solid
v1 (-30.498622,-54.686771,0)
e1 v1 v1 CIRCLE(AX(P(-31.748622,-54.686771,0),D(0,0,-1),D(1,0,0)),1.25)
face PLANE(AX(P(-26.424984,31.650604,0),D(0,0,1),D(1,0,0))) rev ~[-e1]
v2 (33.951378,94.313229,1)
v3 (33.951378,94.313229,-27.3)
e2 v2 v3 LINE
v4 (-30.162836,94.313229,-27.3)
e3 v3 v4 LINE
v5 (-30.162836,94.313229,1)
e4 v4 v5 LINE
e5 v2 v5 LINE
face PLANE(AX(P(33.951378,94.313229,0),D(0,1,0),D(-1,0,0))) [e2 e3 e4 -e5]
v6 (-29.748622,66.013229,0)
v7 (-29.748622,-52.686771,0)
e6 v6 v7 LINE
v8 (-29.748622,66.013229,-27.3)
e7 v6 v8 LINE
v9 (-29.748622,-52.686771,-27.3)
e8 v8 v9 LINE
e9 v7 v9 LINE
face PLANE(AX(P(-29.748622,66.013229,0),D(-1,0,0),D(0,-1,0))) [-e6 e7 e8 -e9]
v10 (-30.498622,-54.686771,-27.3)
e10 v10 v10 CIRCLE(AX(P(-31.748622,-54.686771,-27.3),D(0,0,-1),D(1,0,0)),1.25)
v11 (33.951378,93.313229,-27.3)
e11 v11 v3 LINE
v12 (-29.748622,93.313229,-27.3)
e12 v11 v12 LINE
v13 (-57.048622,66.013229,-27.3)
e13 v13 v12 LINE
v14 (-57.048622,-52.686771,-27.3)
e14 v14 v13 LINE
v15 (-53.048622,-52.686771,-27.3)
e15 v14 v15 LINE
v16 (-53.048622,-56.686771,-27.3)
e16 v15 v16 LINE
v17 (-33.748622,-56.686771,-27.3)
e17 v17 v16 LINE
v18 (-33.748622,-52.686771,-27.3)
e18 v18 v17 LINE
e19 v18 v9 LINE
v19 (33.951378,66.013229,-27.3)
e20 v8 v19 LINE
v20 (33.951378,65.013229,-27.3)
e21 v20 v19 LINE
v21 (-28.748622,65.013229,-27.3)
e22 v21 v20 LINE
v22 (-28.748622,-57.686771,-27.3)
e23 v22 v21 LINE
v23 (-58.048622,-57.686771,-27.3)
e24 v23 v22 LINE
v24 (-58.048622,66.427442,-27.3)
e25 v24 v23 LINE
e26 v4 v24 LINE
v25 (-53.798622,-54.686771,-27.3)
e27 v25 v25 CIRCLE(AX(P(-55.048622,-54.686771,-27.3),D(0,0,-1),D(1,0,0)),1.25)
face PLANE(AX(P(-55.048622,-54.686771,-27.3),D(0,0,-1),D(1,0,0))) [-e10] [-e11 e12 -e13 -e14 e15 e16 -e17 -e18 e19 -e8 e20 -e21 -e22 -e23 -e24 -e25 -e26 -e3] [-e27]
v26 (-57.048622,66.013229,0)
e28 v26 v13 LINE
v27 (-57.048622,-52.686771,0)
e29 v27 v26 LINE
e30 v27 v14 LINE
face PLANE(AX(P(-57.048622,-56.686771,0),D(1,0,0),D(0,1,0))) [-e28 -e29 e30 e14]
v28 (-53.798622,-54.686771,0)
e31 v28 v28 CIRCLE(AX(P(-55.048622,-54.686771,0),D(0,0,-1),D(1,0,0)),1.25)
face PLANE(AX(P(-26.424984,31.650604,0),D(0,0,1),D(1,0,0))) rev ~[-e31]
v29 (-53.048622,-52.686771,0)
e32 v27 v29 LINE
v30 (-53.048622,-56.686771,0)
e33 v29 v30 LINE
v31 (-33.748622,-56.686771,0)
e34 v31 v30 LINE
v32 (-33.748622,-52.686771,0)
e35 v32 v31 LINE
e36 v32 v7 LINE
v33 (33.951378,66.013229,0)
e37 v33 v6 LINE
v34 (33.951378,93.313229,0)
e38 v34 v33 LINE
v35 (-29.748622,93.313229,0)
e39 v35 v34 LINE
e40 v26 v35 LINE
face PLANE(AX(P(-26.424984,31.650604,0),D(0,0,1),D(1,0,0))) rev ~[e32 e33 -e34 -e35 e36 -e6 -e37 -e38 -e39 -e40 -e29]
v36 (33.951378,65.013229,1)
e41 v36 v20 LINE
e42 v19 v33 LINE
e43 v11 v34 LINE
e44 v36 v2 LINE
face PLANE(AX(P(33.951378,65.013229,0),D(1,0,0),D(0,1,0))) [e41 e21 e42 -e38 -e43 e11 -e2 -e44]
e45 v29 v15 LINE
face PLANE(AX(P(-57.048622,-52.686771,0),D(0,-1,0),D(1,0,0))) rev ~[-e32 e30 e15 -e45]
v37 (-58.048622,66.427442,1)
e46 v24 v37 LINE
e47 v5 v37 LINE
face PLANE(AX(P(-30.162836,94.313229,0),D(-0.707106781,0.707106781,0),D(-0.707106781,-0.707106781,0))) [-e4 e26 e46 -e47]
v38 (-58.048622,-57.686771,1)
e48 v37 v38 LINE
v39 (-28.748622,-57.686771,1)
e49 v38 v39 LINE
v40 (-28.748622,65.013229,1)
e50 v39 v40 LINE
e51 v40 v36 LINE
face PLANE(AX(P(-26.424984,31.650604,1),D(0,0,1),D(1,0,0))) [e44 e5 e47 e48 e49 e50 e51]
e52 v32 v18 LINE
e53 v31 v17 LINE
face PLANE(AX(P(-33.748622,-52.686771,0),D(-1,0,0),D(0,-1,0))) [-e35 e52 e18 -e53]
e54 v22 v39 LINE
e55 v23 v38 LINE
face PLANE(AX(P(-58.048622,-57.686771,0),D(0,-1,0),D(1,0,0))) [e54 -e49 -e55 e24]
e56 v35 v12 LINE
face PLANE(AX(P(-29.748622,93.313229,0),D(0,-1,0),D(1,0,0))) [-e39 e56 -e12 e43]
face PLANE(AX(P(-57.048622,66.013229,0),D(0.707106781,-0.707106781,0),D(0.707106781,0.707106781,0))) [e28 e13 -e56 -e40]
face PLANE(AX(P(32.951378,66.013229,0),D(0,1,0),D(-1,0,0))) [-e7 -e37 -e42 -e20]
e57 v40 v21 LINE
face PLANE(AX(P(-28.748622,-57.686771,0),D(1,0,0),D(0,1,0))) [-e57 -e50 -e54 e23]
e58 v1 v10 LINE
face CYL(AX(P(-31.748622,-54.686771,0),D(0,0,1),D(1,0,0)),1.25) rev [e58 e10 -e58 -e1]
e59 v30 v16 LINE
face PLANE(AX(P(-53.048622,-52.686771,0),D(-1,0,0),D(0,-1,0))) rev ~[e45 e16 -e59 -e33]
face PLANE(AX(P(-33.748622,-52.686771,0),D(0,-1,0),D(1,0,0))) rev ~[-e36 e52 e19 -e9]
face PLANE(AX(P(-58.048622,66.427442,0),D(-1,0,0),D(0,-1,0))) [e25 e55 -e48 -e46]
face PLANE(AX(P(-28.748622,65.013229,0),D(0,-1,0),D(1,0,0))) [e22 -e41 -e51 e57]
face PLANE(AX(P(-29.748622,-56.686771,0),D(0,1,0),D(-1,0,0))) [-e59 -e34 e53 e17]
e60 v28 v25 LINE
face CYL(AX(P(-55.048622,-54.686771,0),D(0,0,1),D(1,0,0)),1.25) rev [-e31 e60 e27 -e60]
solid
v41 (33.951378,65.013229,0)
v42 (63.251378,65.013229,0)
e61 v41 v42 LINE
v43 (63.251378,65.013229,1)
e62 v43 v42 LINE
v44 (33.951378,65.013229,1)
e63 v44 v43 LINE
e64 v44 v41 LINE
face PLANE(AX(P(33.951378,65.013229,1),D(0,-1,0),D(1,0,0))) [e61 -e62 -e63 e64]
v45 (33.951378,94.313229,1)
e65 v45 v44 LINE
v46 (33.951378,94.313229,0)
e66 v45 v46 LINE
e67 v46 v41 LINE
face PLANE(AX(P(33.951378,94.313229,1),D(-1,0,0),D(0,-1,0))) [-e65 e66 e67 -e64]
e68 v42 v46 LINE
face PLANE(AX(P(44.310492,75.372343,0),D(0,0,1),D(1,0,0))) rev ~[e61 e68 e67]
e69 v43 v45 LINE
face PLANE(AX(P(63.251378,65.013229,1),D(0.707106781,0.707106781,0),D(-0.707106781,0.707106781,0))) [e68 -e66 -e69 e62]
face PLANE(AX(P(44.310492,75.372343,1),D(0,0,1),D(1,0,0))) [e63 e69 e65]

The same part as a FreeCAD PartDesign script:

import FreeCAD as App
import Part
import Sketcher

V = App.Vector
Q = App.Units.Quantity


def add_polygon(sketch, points):
    """Adds a closed chain of lines whose ends are joined by coincident constraints."""
    first, n = sketch.GeometryCount, len(points)
    for a, b in zip(points, points[1:] + points[:1]):
        sketch.addGeometry(Part.LineSegment(App.Vector(*a, 0), App.Vector(*b, 0)), False)
    for i in range(n):
        sketch.addConstraint(Sketcher.Constraint("Coincident", first + i, 2, first + (i + 1) % n, 1))

doc = App.newDocument("Part")
body = doc.addObject("PartDesign::Body", "Body")

# Sketch on XY plane
sketch1 = body.newObject("Sketcher::SketchObject", "Sketch")
sketch1.AttachmentSupport = (doc.getObject("XY_Plane"), [""])
sketch1.MapMode = "FlatFace"
add_polygon(sketch1, [(33.951378, 94.313229), (-30.162836, 94.313229), (-58.048622, 66.427442), (-58.048622, -57.686771), (-28.748622, -57.686771), (-28.748622, 65.013229), (33.951378, 65.013229)])  # lines 0-6
sketch1.addConstraint(Sketcher.Constraint("Horizontal", 0))
sketch1.addConstraint(Sketcher.Constraint("Vertical", 2))
sketch1.addConstraint(Sketcher.Constraint("Horizontal", 3))
sketch1.addConstraint(Sketcher.Constraint("Vertical", 4))
sketch1.addConstraint(Sketcher.Constraint("Horizontal", 5))
sketch1.addConstraint(Sketcher.Constraint("Vertical", 6))
sketch1.addConstraint(Sketcher.Constraint("Equal", 3, 6))
sketch1.addConstraint(Sketcher.Constraint("Angle", 1, Q("-135 deg")))
sketch1.addConstraint(Sketcher.Constraint("DistanceX", 3, 1, 3, 2, Q("29.3 mm")))
sketch1.addConstraint(Sketcher.Constraint("DistanceX", 5, 1, 5, 2, Q("62.7 mm")))
sketch1.addConstraint(Sketcher.Constraint("DistanceY", 4, 1, 4, 2, Q("122.7 mm")))
sketch1.addConstraint(Sketcher.Constraint("DistanceX", 0, 2, 0, 1, Q("64.114214 mm")))
sketch1.addConstraint(Sketcher.Constraint("DistanceY", -1, 1, 0, 2, Q("94.313229 mm")))
sketch1.addConstraint(Sketcher.Constraint("DistanceX", 1, 2, -1, 1, Q("58.048622 mm")))
pad1 = body.newObject("PartDesign::Pad", "Pad")
pad1.Profile = sketch1
pad1.Length = 1

# Sketch on XY plane
sketch2 = body.newObject("Sketcher::SketchObject", "Sketch001")
sketch2.AttachmentSupport = (doc.getObject("XY_Plane"), [""])
sketch2.MapMode = "FlatFace"
add_polygon(sketch2, [(33.951378, 94.313229), (-30.162836, 94.313229), (-58.048622, 66.427442), (-58.048622, -57.686771), (-28.748622, -57.686771), (-28.748622, 65.013229), (33.951378, 65.013229)])  # lines 0-6
add_polygon(sketch2, [(-29.748622, -56.686771), (-57.048622, -56.686771), (-57.048622, 66.013229), (-29.748622, 93.313229), (32.951378, 93.313229), (32.951378, 66.013229), (-29.748622, 66.013229)])  # lines 7-13
sketch2.addConstraint(Sketcher.Constraint("Horizontal", 0))
sketch2.addConstraint(Sketcher.Constraint("Vertical", 2))
sketch2.addConstraint(Sketcher.Constraint("Horizontal", 3))
sketch2.addConstraint(Sketcher.Constraint("Vertical", 4))
sketch2.addConstraint(Sketcher.Constraint("Horizontal", 5))
sketch2.addConstraint(Sketcher.Constraint("Vertical", 6))
sketch2.addConstraint(Sketcher.Constraint("Horizontal", 7))
sketch2.addConstraint(Sketcher.Constraint("Vertical", 8))
sketch2.addConstraint(Sketcher.Constraint("Horizontal", 10))
sketch2.addConstraint(Sketcher.Constraint("Vertical", 11))
sketch2.addConstraint(Sketcher.Constraint("Horizontal", 12))
sketch2.addConstraint(Sketcher.Constraint("Vertical", 13))
sketch2.addConstraint(Sketcher.Constraint("Parallel", 1, 9))
sketch2.addConstraint(Sketcher.Constraint("Horizontal", 8, 2, 11, 2))
sketch2.addConstraint(Sketcher.Constraint("Vertical", 9, 2, 12, 2))
sketch2.addConstraint(Sketcher.Constraint("Equal", 5, 10))
sketch2.addConstraint(Sketcher.Constraint("Equal", 3, 6))
sketch2.addConstraint(Sketcher.Constraint("Equal", 4, 8))
sketch2.addConstraint(Sketcher.Constraint("Equal", 7, 11))
sketch2.addConstraint(Sketcher.Constraint("DistanceX", 3, 1, 3, 2, Q("29.3 mm")))
sketch2.addConstraint(Sketcher.Constraint("DistanceX", 5, 1, 5, 2, Q("62.7 mm")))
sketch2.addConstraint(Sketcher.Constraint("DistanceX", 7, 2, 7, 1, Q("27.3 mm")))
sketch2.addConstraint(Sketcher.Constraint("DistanceY", 4, 1, 4, 2, Q("122.7 mm")))
sketch2.addConstraint(Sketcher.Constraint("DistanceX", 2, 2, 7, 2, Q("1 mm")))
sketch2.addConstraint(Sketcher.Constraint("DistanceY", 2, 2, 7, 2, Q("1 mm")))
sketch2.addConstraint(Sketcher.Constraint("DistanceX", 0, 2, 0, 1, Q("64.114214 mm")))
sketch2.addConstraint(Sketcher.Constraint("DistanceY", -1, 1, 0, 2, Q("94.313229 mm")))
sketch2.addConstraint(Sketcher.Constraint("DistanceX", 1, 2, -1, 1, Q("58.048622 mm")))
pad2 = body.newObject("PartDesign::Pad", "Pad001")
pad2.Profile = sketch2
pad2.Length = 27.3
pad2.Reversed = True

# Sketch on XY plane
sketch3 = body.newObject("Sketcher::SketchObject", "Sketch002")
sketch3.AttachmentSupport = (doc.getObject("XY_Plane"), [""])
sketch3.MapMode = "FlatFace"
add_polygon(sketch3, [(-57.048622, -56.686771), (-57.048622, -52.686771), (-53.048622, -52.686771), (-53.048622, -56.686771)])  # lines 0-3
sketch3.addGeometry(Part.Circle(V(-55.048622, -54.686771, 0), V(0, 0, 1), 1.25), False)  # 4
add_polygon(sketch3, [(-33.748622, -56.686771), (-33.748622, -52.686771), (-29.748622, -52.686771), (-29.748622, -56.686771)])  # lines 5-8
sketch3.addGeometry(Part.Circle(V(-31.748622, -54.686771, 0), V(0, 0, 1), 1.25), False)  # 9
sketch3.addConstraint(Sketcher.Constraint("Vertical", 0))
sketch3.addConstraint(Sketcher.Constraint("Horizontal", 1))
sketch3.addConstraint(Sketcher.Constraint("Vertical", 2))
sketch3.addConstraint(Sketcher.Constraint("Horizontal", 3))
sketch3.addConstraint(Sketcher.Constraint("Vertical", 5))
sketch3.addConstraint(Sketcher.Constraint("Horizontal", 6))
sketch3.addConstraint(Sketcher.Constraint("Vertical", 7))
sketch3.addConstraint(Sketcher.Constraint("Horizontal", 8))
sketch3.addConstraint(Sketcher.Constraint("Equal", 4, 9))
sketch3.addConstraint(Sketcher.Constraint("Horizontal", 4, 3, 9, 3))
sketch3.addConstraint(Sketcher.Constraint("Horizontal", 1, 2, 5, 2))
sketch3.addConstraint(Sketcher.Constraint("Horizontal", 3, 2, 7, 2))
sketch3.addConstraint(Sketcher.Constraint("Equal", 3, 6))
sketch3.addConstraint(Sketcher.Constraint("Equal", 8, 0))
sketch3.addConstraint(Sketcher.Constraint("Diameter", 4, Q("2.5 mm")))
sketch3.addConstraint(Sketcher.Constraint("DistanceX", 1, 1, 1, 2, Q("4 mm")))
sketch3.addConstraint(Sketcher.Constraint("DistanceX", 0, 2, 4, 3, Q("2 mm")))
sketch3.addConstraint(Sketcher.Constraint("DistanceY", 4, 3, 0, 2, Q("2 mm")))
sketch3.addConstraint(Sketcher.Constraint("DistanceX", 5, 2, 9, 3, Q("2 mm")))
sketch3.addConstraint(Sketcher.Constraint("DistanceX", 4, 3, 9, 3, Q("23.3 mm")))
sketch3.addConstraint(Sketcher.Constraint("DistanceX", 4, 3, -1, 1, Q("55.048622 mm")))
sketch3.addConstraint(Sketcher.Constraint("DistanceY", 4, 3, -1, 1, Q("54.686771 mm")))
pad3 = body.newObject("PartDesign::Pad", "Pad002")
pad3.Profile = sketch3
pad3.Length = 27.3
pad3.Reversed = True

# Sketch on XY plane
sketch4 = body.newObject("Sketcher::SketchObject", "Sketch003")
sketch4.AttachmentSupport = (doc.getObject("XY_Plane"), [""])
sketch4.MapMode = "FlatFace"
sketch4.AttachmentOffset = App.Placement(V(0, 0, -27.3), App.Rotation())
add_polygon(sketch4, [(32.951378, 66.013229), (32.951378, 93.313229), (33.951378, 93.313229), (33.951378, 66.013229)])  # lines 0-3
sketch4.addConstraint(Sketcher.Constraint("Vertical", 0))
sketch4.addConstraint(Sketcher.Constraint("Horizontal", 1))
sketch4.addConstraint(Sketcher.Constraint("Vertical", 2))
sketch4.addConstraint(Sketcher.Constraint("Horizontal", 3))
sketch4.addConstraint(Sketcher.Constraint("DistanceX", 1, 1, 1, 2, Q("1 mm")))
sketch4.addConstraint(Sketcher.Constraint("DistanceY", 0, 1, 0, 2, Q("27.3 mm")))
sketch4.addConstraint(Sketcher.Constraint("DistanceX", -1, 1, 0, 2, Q("32.951378 mm")))
sketch4.addConstraint(Sketcher.Constraint("DistanceY", -1, 1, 0, 2, Q("93.313229 mm")))
pocket1 = body.newObject("PartDesign::Pocket", "Pocket")
pocket1.Profile = sketch4
pocket1.Length = 27.3
pocket1.Reversed = True
body2 = doc.addObject("PartDesign::Body", "Body001")

# Sketch on XY plane
sketch5 = body2.newObject("Sketcher::SketchObject", "Sketch004")
sketch5.AttachmentSupport = (doc.getObject("XY_Plane001"), [""])
sketch5.MapMode = "FlatFace"
sketch5.AttachmentOffset = App.Placement(V(0, 0, 1), App.Rotation())
add_polygon(sketch5, [(63.251378, 65.013229), (33.951378, 94.313229), (33.951378, 65.013229)])  # lines 0-2
sketch5.addConstraint(Sketcher.Constraint("Vertical", 1))
sketch5.addConstraint(Sketcher.Constraint("Horizontal", 2))
sketch5.addConstraint(Sketcher.Constraint("Equal", 2, 1))
sketch5.addConstraint(Sketcher.Constraint("DistanceX", 2, 1, 2, 2, Q("29.3 mm")))
sketch5.addConstraint(Sketcher.Constraint("DistanceX", -1, 1, 0, 2, Q("33.951378 mm")))
sketch5.addConstraint(Sketcher.Constraint("DistanceY", -1, 1, 0, 2, Q("94.313229 mm")))
pad4 = body2.newObject("PartDesign::Pad", "Pad003")
pad4.Profile = sketch5
pad4.Length = 1
pad4.Reversed = True

doc.recompute()
